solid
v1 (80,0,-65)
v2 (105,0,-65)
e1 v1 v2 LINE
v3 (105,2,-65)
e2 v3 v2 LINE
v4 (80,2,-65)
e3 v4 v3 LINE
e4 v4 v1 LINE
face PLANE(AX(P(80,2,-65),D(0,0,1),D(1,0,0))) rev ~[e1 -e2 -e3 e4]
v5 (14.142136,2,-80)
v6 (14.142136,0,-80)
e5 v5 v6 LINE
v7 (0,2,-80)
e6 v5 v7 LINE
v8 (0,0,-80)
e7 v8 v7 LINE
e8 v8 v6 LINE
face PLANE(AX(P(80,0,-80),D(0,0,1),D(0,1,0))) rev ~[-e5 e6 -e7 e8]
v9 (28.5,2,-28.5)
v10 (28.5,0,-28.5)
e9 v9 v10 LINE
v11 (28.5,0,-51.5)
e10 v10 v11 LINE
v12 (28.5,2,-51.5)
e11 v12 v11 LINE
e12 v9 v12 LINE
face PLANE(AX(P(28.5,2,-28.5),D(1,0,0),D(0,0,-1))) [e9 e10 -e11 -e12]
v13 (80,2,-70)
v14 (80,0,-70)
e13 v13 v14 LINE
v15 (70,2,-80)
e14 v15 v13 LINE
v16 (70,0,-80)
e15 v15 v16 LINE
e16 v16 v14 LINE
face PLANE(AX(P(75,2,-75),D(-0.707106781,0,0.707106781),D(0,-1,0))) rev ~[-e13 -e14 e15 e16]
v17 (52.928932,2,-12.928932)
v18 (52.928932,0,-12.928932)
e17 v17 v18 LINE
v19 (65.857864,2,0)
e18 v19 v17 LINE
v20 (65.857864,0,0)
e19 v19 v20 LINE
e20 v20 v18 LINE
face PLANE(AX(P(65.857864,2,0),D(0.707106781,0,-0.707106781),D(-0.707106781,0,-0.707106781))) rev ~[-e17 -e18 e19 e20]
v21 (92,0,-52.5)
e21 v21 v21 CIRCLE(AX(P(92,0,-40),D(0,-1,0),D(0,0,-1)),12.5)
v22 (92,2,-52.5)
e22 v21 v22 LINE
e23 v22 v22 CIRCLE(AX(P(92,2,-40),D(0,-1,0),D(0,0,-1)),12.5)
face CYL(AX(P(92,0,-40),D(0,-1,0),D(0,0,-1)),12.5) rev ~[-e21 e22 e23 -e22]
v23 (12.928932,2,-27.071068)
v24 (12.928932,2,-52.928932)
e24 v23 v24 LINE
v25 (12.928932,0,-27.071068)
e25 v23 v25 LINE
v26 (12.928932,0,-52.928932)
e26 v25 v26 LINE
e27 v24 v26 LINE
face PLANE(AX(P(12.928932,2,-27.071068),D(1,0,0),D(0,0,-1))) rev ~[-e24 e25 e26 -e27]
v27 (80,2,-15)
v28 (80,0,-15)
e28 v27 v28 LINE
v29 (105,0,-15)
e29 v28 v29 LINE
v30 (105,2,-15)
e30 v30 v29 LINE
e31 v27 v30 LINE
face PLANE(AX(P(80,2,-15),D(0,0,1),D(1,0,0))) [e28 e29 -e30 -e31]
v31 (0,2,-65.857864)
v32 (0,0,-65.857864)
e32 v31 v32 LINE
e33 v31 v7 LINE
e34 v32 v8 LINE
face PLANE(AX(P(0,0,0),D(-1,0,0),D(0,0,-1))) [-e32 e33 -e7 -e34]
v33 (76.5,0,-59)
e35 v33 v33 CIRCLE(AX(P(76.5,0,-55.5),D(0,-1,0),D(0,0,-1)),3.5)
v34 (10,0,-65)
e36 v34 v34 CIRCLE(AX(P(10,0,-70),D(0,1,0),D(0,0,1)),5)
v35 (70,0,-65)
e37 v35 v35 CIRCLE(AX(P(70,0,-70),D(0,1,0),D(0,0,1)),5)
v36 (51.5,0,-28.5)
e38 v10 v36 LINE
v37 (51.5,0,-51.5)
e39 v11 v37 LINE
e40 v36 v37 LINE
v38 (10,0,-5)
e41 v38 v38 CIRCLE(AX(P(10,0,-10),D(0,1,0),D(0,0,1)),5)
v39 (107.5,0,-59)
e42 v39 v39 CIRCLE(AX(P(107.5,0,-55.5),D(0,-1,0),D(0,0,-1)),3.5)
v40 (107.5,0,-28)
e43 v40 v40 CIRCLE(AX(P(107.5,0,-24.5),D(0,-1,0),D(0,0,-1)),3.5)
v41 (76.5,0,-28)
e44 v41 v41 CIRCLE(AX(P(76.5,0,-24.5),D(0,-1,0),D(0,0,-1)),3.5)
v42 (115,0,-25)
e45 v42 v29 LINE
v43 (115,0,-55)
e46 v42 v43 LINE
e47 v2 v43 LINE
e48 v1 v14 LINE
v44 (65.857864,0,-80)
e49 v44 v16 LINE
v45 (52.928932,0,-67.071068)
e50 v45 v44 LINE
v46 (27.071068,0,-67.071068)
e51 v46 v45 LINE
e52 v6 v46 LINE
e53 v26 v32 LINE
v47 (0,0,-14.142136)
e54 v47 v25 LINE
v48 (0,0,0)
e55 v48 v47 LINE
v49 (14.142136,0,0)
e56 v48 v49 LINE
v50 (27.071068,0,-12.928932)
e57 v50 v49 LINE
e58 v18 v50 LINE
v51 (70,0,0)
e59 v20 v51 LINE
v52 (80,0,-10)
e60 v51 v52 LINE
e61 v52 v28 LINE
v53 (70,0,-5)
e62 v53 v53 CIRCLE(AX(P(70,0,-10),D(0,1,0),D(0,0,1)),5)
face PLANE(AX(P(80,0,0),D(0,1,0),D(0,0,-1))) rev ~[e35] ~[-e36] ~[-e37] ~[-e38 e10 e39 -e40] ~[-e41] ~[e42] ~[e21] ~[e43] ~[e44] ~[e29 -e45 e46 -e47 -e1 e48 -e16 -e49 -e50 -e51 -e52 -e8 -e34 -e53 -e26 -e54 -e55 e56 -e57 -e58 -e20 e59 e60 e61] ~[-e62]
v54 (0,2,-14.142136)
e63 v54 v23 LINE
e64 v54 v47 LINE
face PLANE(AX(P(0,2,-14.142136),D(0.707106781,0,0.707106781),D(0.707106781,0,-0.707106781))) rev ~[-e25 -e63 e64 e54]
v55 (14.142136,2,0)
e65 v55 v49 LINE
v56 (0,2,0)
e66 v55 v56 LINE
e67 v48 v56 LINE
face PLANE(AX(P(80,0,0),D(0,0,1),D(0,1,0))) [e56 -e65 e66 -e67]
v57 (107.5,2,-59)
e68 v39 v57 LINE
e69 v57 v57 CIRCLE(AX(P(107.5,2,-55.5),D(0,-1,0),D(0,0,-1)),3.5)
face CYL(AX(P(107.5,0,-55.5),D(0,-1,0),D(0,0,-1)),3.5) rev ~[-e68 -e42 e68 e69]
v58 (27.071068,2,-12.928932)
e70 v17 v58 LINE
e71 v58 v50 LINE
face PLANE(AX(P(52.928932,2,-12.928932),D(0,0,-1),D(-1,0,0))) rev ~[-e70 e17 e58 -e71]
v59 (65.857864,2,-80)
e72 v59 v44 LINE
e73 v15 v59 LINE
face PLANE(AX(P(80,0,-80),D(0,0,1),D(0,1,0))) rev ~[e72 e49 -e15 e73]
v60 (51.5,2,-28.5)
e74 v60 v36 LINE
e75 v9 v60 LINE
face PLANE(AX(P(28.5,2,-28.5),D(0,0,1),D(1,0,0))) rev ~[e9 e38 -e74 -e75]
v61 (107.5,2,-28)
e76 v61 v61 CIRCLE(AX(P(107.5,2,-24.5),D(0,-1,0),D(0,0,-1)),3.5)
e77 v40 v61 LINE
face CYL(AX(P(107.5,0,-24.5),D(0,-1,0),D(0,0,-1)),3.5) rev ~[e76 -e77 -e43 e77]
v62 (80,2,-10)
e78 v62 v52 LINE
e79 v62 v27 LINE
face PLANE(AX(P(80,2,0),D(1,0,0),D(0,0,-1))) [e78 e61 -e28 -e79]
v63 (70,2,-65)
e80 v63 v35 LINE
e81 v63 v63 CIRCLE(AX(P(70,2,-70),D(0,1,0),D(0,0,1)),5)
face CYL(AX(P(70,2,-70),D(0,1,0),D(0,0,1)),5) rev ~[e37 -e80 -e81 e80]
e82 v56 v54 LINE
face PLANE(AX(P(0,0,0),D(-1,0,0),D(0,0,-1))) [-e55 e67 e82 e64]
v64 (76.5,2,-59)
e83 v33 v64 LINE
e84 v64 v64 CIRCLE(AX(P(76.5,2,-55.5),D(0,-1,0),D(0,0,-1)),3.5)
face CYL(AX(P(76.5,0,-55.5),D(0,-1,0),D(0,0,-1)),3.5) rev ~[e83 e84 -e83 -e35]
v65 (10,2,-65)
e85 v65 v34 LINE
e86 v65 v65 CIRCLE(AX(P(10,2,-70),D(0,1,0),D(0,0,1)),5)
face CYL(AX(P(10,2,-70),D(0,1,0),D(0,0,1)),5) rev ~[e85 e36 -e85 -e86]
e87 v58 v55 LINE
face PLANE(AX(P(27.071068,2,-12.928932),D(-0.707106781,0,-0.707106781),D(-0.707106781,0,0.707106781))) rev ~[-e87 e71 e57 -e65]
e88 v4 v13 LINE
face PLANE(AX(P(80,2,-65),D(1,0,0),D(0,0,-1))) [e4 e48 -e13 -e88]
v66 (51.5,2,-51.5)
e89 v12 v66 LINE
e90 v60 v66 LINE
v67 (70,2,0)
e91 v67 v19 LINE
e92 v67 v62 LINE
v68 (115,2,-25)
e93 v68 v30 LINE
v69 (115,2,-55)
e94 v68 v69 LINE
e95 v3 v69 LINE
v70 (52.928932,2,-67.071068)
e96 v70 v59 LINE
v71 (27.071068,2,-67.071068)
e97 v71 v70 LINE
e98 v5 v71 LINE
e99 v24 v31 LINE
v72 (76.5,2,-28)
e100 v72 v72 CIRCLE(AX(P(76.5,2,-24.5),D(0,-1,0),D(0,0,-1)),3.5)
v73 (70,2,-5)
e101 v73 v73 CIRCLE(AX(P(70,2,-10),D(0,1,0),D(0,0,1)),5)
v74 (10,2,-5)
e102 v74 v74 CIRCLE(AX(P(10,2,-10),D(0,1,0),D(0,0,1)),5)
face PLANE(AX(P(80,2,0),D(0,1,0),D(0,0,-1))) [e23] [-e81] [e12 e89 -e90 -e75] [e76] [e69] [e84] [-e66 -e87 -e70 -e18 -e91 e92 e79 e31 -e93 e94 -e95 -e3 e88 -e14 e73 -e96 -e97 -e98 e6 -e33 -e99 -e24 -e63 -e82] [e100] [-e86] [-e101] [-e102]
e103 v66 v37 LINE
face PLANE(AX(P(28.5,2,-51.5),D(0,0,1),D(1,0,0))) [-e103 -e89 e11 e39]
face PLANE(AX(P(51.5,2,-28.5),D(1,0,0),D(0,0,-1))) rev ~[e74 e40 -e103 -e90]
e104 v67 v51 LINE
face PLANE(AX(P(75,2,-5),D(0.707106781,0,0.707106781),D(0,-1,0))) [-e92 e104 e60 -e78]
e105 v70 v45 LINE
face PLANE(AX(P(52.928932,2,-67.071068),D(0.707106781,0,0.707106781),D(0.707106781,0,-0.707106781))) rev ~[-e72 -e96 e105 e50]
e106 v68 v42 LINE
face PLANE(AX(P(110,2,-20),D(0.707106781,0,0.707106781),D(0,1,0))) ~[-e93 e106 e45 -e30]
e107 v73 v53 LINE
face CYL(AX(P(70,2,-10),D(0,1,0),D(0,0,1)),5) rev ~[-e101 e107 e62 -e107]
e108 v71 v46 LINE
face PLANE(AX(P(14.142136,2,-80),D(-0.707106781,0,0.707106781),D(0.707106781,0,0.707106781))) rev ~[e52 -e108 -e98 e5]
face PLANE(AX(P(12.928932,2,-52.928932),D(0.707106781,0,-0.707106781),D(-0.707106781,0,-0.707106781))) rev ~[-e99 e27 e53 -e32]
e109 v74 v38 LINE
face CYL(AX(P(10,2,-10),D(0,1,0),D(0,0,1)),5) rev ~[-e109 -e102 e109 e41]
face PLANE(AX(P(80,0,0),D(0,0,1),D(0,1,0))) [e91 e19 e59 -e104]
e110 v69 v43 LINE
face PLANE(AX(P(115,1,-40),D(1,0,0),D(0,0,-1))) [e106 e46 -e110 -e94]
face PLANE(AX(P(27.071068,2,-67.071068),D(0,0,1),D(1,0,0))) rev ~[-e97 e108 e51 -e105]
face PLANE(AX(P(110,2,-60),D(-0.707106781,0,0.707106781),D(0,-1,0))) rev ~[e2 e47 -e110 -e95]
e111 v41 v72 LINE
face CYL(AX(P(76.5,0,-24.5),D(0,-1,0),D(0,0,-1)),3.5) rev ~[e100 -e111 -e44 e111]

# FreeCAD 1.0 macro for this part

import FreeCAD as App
import Part
import Sketcher


def edges_at(feature, points):
    """Names of the edges that pass closest to the given points."""
    edges = feature.Shape.Edges
    near = lambda p: min(range(len(edges)), key=lambda i: edges[i].distToShape(Part.Vertex(*p))[0])
    return sorted({f"Edge{near(p) + 1}" for p in points})


def add_polygon(sketch, points):
    """Adds a closed chain of lines whose ends are joined by coincident constraints."""
    first, n = sketch.GeometryCount, len(points)
    for a, b in zip(points, points[1:] + points[:1]):
        sketch.addGeometry(Part.LineSegment(App.Vector(*a, 0), App.Vector(*b, 0)), False)
    for i in range(n):
        sketch.addConstraint(Sketcher.Constraint("Coincident", first + i, 2, first + (i + 1) % n, 1))

doc = App.newDocument("Part")
params = doc.addObject("Spreadsheet::Sheet", "Params")
for row, (alias, value) in enumerate([
    ("sketch1_width", "80 mm"),
    ("pad1_length", "2 mm"),
    ("sketch2_diameter", "5 mm"),
    ("pocket1_length", "10 mm"),
    ("sketch3_width", "2 mm"),
    ("sketch3_height", "80 mm"),
    ("pad2_length", "35 mm"),
    ("sketch4_diameter", "3 mm"),
    ("sketch4_diameter2", "25 mm"),
    ("pocket2_length", "10 mm"),
    ("sketch5_width", "23 mm"),
    ("pocket3_length", "10 mm"),
    ("sketch6_width", "35 mm"),
    ("sketch6_height", "15 mm"),
    ("pocket4_length", "10 mm"),
    ("chamfer_size", "10 mm"),
    ("sketch7_diameter", "10 mm"),
    ("pocket5_length", "4 mm"),
    ("sketch8_diameter", "7 mm"),
    ("pocket6_length", "3 mm"),
], start=1):
    params.set(f"A{row}", alias)
    params.set(f"B{row}", "=" + value)
    params.setAlias(f"B{row}", alias)

body = doc.addObject("PartDesign::Body", "Body")

sketch1 = body.newObject("Sketcher::SketchObject", "Sketch")
sketch1.AttachmentSupport = (doc.getObject("XZ_Plane"), [""])
sketch1.MapMode = "FlatFace"
add_polygon(sketch1, [(0, -80), (0, 0), (80, 0), (80, -80)])
sketch1.addConstraint([
    Sketcher.Constraint("Vertical", 0),
    Sketcher.Constraint("Horizontal", 1),
    Sketcher.Constraint("Vertical", 2),
    Sketcher.Constraint("Horizontal", 3),
    Sketcher.Constraint("Coincident", 0, 2, -1, 1),
    Sketcher.Constraint("Equal", 3, 0),
    Sketcher.Constraint("DistanceX", 1, 1, 1, 2, 80.0),
])
sketch1.setExpression("Constraints[10]", "Params.sketch1_width")
pad1 = body.newObject("PartDesign::Pad", "Pad")
pad1.Profile = sketch1
pad1.setExpression("Length", "Params.pad1_length")
pad1.Reversed = True

sketch2 = body.newObject("Sketcher::SketchObject", "Sketch001")
sketch2.AttachmentSupport = (doc.getObject("XZ_Plane"), [""])
sketch2.MapMode = "FlatFace"
sketch2.addGeometry([
    Part.Circle(App.Vector(70, -70, 0), App.Vector(0, 0, 1), 2.5),
    Part.Circle(App.Vector(70, -10, 0), App.Vector(0, 0, 1), 2.5),
    Part.Circle(App.Vector(10, -10, 0), App.Vector(0, 0, 1), 2.5),
    Part.Circle(App.Vector(10, -70, 0), App.Vector(0, 0, 1), 2.5),
], False)
sketch2.addConstraint([
    Sketcher.Constraint("Equal", 0, 1),
    Sketcher.Constraint("Equal", 1, 2),
    Sketcher.Constraint("Equal", 2, 3),
    Sketcher.Constraint("Horizontal", 1, 3, 2, 3),
    Sketcher.Constraint("Horizontal", 0, 3, 3, 3),
    Sketcher.Constraint("Vertical", 0, 3, 1, 3),
    Sketcher.Constraint("Vertical", 2, 3, 3, 3),
    Sketcher.Constraint("Diameter", 0, 5.0),
    Sketcher.Constraint("DistanceX", -1, 1, 0, 3, 70.0),
    Sketcher.Constraint("DistanceY", 0, 3, -1, 1, 70.0),
    Sketcher.Constraint("DistanceY", 1, 3, -1, 1, 10.0),
    Sketcher.Constraint("DistanceX", -1, 1, 2, 3, 10.0),
])
sketch2.setExpression("Constraints[7]", "Params.sketch2_diameter")
pocket1 = body.newObject("PartDesign::Pocket", "Pocket")
pocket1.Profile = sketch2
pocket1.setExpression("Length", "Params.pocket1_length")

sketch3 = body.newObject("Sketcher::SketchObject", "Sketch002")
sketch3.AttachmentSupport = (doc.getObject("YZ_Plane"), [""])
sketch3.MapMode = "FlatFace"
sketch3.AttachmentOffset = App.Placement(App.Vector(0, 0, 80), App.Rotation())
add_polygon(sketch3, [(2, 0), (0, 0), (0, -80), (2, -80)])
sketch3.addConstraint([
    Sketcher.Constraint("Horizontal", 0),
    Sketcher.Constraint("Vertical", 1),
    Sketcher.Constraint("Horizontal", 2),
    Sketcher.Constraint("Vertical", 3),
    Sketcher.Constraint("Coincident", 0, 2, -1, 1),
    Sketcher.Constraint("DistanceX", 0, 2, 0, 1, 2.0),
    Sketcher.Constraint("DistanceY", 1, 2, 1, 1, 80.0),
])
sketch3.setExpression("Constraints[9]", "Params.sketch3_width")
sketch3.setExpression("Constraints[10]", "Params.sketch3_height")
pad2 = body.newObject("PartDesign::Pad", "Pad001")
pad2.Profile = sketch3
pad2.setExpression("Length", "Params.pad2_length")

sketch4 = body.newObject("Sketcher::SketchObject", "Sketch003")
sketch4.AttachmentSupport = (doc.getObject("XZ_Plane"), [""])
sketch4.MapMode = "FlatFace"
sketch4.addGeometry([
    Part.Circle(App.Vector(107.5, -24.5, 0), App.Vector(0, 0, 1), 1.5),
    Part.Circle(App.Vector(107.5, -55.5, 0), App.Vector(0, 0, 1), 1.5),
    Part.Circle(App.Vector(76.5, -55.5, 0), App.Vector(0, 0, 1), 1.5),
    Part.Circle(App.Vector(76.5, -24.5, 0), App.Vector(0, 0, 1), 1.5),
    Part.Circle(App.Vector(92, -40, 0), App.Vector(0, 0, 1), 12.5),
], False)
sketch4.addConstraint([
    Sketcher.Constraint("Equal", 0, 1),
    Sketcher.Constraint("Equal", 1, 2),
    Sketcher.Constraint("Equal", 2, 3),
    Sketcher.Constraint("Horizontal", 1, 3, 2, 3),
    Sketcher.Constraint("Horizontal", 0, 3, 3, 3),
    Sketcher.Constraint("Vertical", 0, 3, 1, 3),
    Sketcher.Constraint("Vertical", 2, 3, 3, 3),
    Sketcher.Constraint("Diameter", 0, 3.0),
    Sketcher.Constraint("Diameter", 4, 25.0),
    Sketcher.Constraint("DistanceX", -1, 1, 4, 3, 92.0),
    Sketcher.Constraint("DistanceY", 4, 3, -1, 1, 40.0),
    Sketcher.Constraint("DistanceY", 1, 3, 0, 3, 31.0),
    Sketcher.Constraint("DistanceX", 2, 3, 1, 3, 31.0),
    Sketcher.Constraint("DistanceX", -1, 1, 0, 3, 107.5),
    Sketcher.Constraint("DistanceY", 0, 3, -1, 1, 24.5),
])
sketch4.setExpression("Constraints[7]", "Params.sketch4_diameter")
sketch4.setExpression("Constraints[8]", "Params.sketch4_diameter2")
pocket2 = body.newObject("PartDesign::Pocket", "Pocket001")
pocket2.Profile = sketch4
pocket2.setExpression("Length", "Params.pocket2_length")

sketch5 = body.newObject("Sketcher::SketchObject", "Sketch004")
sketch5.AttachmentSupport = (doc.getObject("XZ_Plane"), [""])
sketch5.MapMode = "FlatFace"
sketch5.AttachmentOffset = App.Placement(App.Vector(0, 0, -2), App.Rotation())
add_polygon(sketch5, [(66, -80), (14, -80), (27, -67), (53, -67)])
add_polygon(sketch5, [(28, -52), (28, -28), (52, -28), (52, -52)])
add_polygon(sketch5, [(27, -13), (14, 0), (66, 0), (53, -13)])
add_polygon(sketch5, [(13, -53), (0, -66), (0, -14), (13, -27)])
sketch5.addConstraint([
    Sketcher.Constraint("Horizontal", 0),
    Sketcher.Constraint("Horizontal", 2),
    Sketcher.Constraint("Vertical", 4),
    Sketcher.Constraint("Horizontal", 5),
    Sketcher.Constraint("Vertical", 6),
    Sketcher.Constraint("Horizontal", 7),
    Sketcher.Constraint("Horizontal", 9),
    Sketcher.Constraint("Horizontal", 11),
    Sketcher.Constraint("Vertical", 13),
    Sketcher.Constraint("Vertical", 15),
    Sketcher.Constraint("PointOnObject", 8, 2, -1),
    Sketcher.Constraint("PointOnObject", 12, 2, -2),
    Sketcher.Constraint("Perpendicular", 1, 3),
    Sketcher.Constraint("Parallel", 3, 8),
    Sketcher.Constraint("Perpendicular", 8, 10),
    Sketcher.Constraint("Parallel", 10, 12),
    Sketcher.Constraint("Perpendicular", 12, 14),
    Sketcher.Constraint("Vertical", 0, 2, 8, 2),
    Sketcher.Constraint("Vertical", 3, 2, 9, 2),
    Sketcher.Constraint("Vertical", 2, 2, 10, 2),
    Sketcher.Constraint("Vertical", 1, 2, 11, 2),
    Sketcher.Constraint("Equal", 7, 4),
    Sketcher.Constraint("Equal", 9, 13),
    Sketcher.Constraint("Equal", 11, 15),
    Sketcher.Constraint("DistanceX", 5, 1, 5, 2, 23.0),
    Sketcher.Constraint("DistanceY", 0, 2, -1, 1, 80.0),
    Sketcher.Constraint("DistanceX", -1, 1, 4, 2, 28.5),
    Sketcher.Constraint("DistanceY", 4, 2, -1, 1, 28.5),
    Sketcher.Constraint("DistanceX", 0, 2, 0, 1, 51.715729),
    Sketcher.Constraint("Distance", 1, 18.284271),
    Sketcher.Constraint("DistanceX", -1, 1, 0, 2, 14.142136),
    Sketcher.Constraint("DistanceY", 12, 2, -1, 1, 65.857864),
])
sketch5.setExpression("Constraints[40]", "Params.sketch5_width")
pocket3 = body.newObject("PartDesign::Pocket", "Pocket002")
pocket3.Profile = sketch5
pocket3.setExpression("Length", "Params.pocket3_length")
pocket3.Reversed = True

sketch6 = body.newObject("Sketcher::SketchObject", "Sketch005")
sketch6.AttachmentSupport = (doc.getObject("XZ_Plane"), [""])
sketch6.MapMode = "FlatFace"
sketch6.AttachmentOffset = App.Placement(App.Vector(0, 0, -2), App.Rotation())
add_polygon(sketch6, [(80, -80), (80, -65), (115, -65), (115, -80)])
add_polygon(sketch6, [(80, -15), (80, 0), (115, 0), (115, -15)])
sketch6.addConstraint([
    Sketcher.Constraint("Vertical", 0),
    Sketcher.Constraint("Horizontal", 1),
    Sketcher.Constraint("Vertical", 2),
    Sketcher.Constraint("Horizontal", 3),
    Sketcher.Constraint("Vertical", 4),
    Sketcher.Constraint("Horizontal", 5),
    Sketcher.Constraint("Vertical", 6),
    Sketcher.Constraint("Horizontal", 7),
    Sketcher.Constraint("PointOnObject", 4, 2, -1),
    Sketcher.Constraint("Vertical", 3, 2, 4, 2),
    Sketcher.Constraint("Vertical", 2, 2, 5, 2),
    Sketcher.Constraint("Equal", 2, 4),
    Sketcher.Constraint("DistanceX", 1, 1, 1, 2, 35.0),
    Sketcher.Constraint("DistanceY", 0, 1, 0, 2, 15.0),
    Sketcher.Constraint("DistanceX", -1, 1, 0, 2, 80.0),
    Sketcher.Constraint("DistanceY", 0, 2, -1, 1, 65.0),
])
sketch6.setExpression("Constraints[20]", "Params.sketch6_width")
sketch6.setExpression("Constraints[21]", "Params.sketch6_height")
pocket4 = body.newObject("PartDesign::Pocket", "Pocket003")
pocket4.Profile = sketch6
pocket4.setExpression("Length", "Params.pocket4_length")
pocket4.Reversed = True
doc.recompute()

chamfer = body.newObject("PartDesign::Chamfer", "Chamfer")
chamfer.Base = (pocket4, edges_at(pocket4, [
    (115, 1, -15),
    (115, 1, -65),
    (80, 1, -80),
    (80, 1, 0),
]))
chamfer.setExpression("Size", "Params.chamfer_size")

sketch7 = body.newObject("Sketcher::SketchObject", "Sketch006")
sketch7.AttachmentSupport = (doc.getObject("XZ_Plane"), [""])
sketch7.MapMode = "FlatFace"
sketch7.AttachmentOffset = App.Placement(App.Vector(0, 0, -2), App.Rotation())
sketch7.addGeometry([
    Part.Circle(App.Vector(70, -70, 0), App.Vector(0, 0, 1), 5),
    Part.Circle(App.Vector(70, -10, 0), App.Vector(0, 0, 1), 5),
    Part.Circle(App.Vector(10, -10, 0), App.Vector(0, 0, 1), 5),
    Part.Circle(App.Vector(10, -70, 0), App.Vector(0, 0, 1), 5),
], False)
sketch7.addConstraint([
    Sketcher.Constraint("Equal", 0, 1),
    Sketcher.Constraint("Equal", 1, 2),
    Sketcher.Constraint("Equal", 2, 3),
    Sketcher.Constraint("Horizontal", 1, 3, 2, 3),
    Sketcher.Constraint("Horizontal", 0, 3, 3, 3),
    Sketcher.Constraint("Vertical", 0, 3, 1, 3),
    Sketcher.Constraint("Vertical", 2, 3, 3, 3),
    Sketcher.Constraint("Diameter", 0, 10.0),
    Sketcher.Constraint("DistanceX", -1, 1, 0, 3, 70.0),
    Sketcher.Constraint("DistanceY", 0, 3, -1, 1, 70.0),
    Sketcher.Constraint("DistanceY", 1, 3, -1, 1, 10.0),
    Sketcher.Constraint("DistanceX", -1, 1, 2, 3, 10.0),
])
sketch7.setExpression("Constraints[7]", "Params.sketch7_diameter")
pocket5 = body.newObject("PartDesign::Pocket", "Pocket004")
pocket5.Profile = sketch7
pocket5.setExpression("Length", "Params.pocket5_length")
pocket5.Reversed = True

sketch8 = body.newObject("Sketcher::SketchObject", "Sketch007")
sketch8.AttachmentSupport = (doc.getObject("XZ_Plane"), [""])
sketch8.MapMode = "FlatFace"
sketch8.addGeometry([
    Part.Circle(App.Vector(107.5, -24.5, 0), App.Vector(0, 0, 1), 3.5),
    Part.Circle(App.Vector(107.5, -55.5, 0), App.Vector(0, 0, 1), 3.5),
    Part.Circle(App.Vector(76.5, -55.5, 0), App.Vector(0, 0, 1), 3.5),
    Part.Circle(App.Vector(76.5, -24.5, 0), App.Vector(0, 0, 1), 3.5),
], False)
sketch8.addConstraint([
    Sketcher.Constraint("Equal", 0, 1),
    Sketcher.Constraint("Equal", 1, 2),
    Sketcher.Constraint("Equal", 2, 3),
    Sketcher.Constraint("Horizontal", 1, 3, 2, 3),
    Sketcher.Constraint("Horizontal", 0, 3, 3, 3),
    Sketcher.Constraint("Vertical", 0, 3, 1, 3),
    Sketcher.Constraint("Vertical", 2, 3, 3, 3),
    Sketcher.Constraint("Diameter", 0, 7.0),
    Sketcher.Constraint("DistanceY", 1, 3, 0, 3, 31.0),
    Sketcher.Constraint("DistanceX", 2, 3, 1, 3, 31.0),
    Sketcher.Constraint("DistanceX", -1, 1, 0, 3, 107.5),
    Sketcher.Constraint("DistanceY", 0, 3, -1, 1, 24.5),
])
sketch8.setExpression("Constraints[7]", "Params.sketch8_diameter")
pocket6 = body.newObject("PartDesign::Pocket", "Pocket005")
pocket6.Profile = sketch8
pocket6.setExpression("Length", "Params.pocket6_length")

doc.recompute()
